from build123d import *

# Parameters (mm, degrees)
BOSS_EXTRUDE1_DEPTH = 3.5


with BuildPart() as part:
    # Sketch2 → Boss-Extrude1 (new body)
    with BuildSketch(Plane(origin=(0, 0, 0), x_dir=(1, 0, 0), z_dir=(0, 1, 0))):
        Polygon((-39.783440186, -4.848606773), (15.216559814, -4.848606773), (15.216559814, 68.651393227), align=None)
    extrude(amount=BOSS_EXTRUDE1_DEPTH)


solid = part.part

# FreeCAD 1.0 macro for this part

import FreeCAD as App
import Part
import Sketcher

V = App.Vector
Q = App.Units.Quantity


def add_polygon(sketch, points):
    """Adds a closed chain of lines whose ends are joined by coincident constraints."""
    first, n = sketch.GeometryCount, len(points)
    for a, b in zip(points, points[1:] + points[:1]):
        sketch.addGeometry(Part.LineSegment(App.Vector(*a, 0), App.Vector(*b, 0)), False)
    for i in range(n):
        sketch.addConstraint(Sketcher.Constraint("Coincident", first + i, 2, first + (i + 1) % n, 1))

doc = App.newDocument("Part")
body = doc.addObject("PartDesign::Body", "Body")

sketch1 = body.newObject("Sketcher::SketchObject", "Sketch")
sketch1.AttachmentSupport = (doc.getObject("XZ_Plane"), [""])
sketch1.MapMode = "FlatFace"
add_polygon(sketch1, [(-40, 5), (15, 5), (15, -69)])
sketch1.addConstraint([
    Sketcher.Constraint("Horizontal", 0),
    Sketcher.Constraint("Vertical", 1),
    Sketcher.Constraint("DistanceX", 0, 1, 0, 2, Q("55 mm")),
    Sketcher.Constraint("DistanceY", 1, 2, 1, 1, Q("73.5 mm")),
    Sketcher.Constraint("DistanceX", -1, 1, 0, 2, Q("15.21656 mm")),
    Sketcher.Constraint("DistanceY", -1, 1, 0, 2, Q("4.848607 mm")),
])
pad1 = body.newObject("PartDesign::Pad", "Pad")
pad1.Profile = sketch1
pad1.Length = 3.5
pad1.Reversed = True

doc.recompute()
